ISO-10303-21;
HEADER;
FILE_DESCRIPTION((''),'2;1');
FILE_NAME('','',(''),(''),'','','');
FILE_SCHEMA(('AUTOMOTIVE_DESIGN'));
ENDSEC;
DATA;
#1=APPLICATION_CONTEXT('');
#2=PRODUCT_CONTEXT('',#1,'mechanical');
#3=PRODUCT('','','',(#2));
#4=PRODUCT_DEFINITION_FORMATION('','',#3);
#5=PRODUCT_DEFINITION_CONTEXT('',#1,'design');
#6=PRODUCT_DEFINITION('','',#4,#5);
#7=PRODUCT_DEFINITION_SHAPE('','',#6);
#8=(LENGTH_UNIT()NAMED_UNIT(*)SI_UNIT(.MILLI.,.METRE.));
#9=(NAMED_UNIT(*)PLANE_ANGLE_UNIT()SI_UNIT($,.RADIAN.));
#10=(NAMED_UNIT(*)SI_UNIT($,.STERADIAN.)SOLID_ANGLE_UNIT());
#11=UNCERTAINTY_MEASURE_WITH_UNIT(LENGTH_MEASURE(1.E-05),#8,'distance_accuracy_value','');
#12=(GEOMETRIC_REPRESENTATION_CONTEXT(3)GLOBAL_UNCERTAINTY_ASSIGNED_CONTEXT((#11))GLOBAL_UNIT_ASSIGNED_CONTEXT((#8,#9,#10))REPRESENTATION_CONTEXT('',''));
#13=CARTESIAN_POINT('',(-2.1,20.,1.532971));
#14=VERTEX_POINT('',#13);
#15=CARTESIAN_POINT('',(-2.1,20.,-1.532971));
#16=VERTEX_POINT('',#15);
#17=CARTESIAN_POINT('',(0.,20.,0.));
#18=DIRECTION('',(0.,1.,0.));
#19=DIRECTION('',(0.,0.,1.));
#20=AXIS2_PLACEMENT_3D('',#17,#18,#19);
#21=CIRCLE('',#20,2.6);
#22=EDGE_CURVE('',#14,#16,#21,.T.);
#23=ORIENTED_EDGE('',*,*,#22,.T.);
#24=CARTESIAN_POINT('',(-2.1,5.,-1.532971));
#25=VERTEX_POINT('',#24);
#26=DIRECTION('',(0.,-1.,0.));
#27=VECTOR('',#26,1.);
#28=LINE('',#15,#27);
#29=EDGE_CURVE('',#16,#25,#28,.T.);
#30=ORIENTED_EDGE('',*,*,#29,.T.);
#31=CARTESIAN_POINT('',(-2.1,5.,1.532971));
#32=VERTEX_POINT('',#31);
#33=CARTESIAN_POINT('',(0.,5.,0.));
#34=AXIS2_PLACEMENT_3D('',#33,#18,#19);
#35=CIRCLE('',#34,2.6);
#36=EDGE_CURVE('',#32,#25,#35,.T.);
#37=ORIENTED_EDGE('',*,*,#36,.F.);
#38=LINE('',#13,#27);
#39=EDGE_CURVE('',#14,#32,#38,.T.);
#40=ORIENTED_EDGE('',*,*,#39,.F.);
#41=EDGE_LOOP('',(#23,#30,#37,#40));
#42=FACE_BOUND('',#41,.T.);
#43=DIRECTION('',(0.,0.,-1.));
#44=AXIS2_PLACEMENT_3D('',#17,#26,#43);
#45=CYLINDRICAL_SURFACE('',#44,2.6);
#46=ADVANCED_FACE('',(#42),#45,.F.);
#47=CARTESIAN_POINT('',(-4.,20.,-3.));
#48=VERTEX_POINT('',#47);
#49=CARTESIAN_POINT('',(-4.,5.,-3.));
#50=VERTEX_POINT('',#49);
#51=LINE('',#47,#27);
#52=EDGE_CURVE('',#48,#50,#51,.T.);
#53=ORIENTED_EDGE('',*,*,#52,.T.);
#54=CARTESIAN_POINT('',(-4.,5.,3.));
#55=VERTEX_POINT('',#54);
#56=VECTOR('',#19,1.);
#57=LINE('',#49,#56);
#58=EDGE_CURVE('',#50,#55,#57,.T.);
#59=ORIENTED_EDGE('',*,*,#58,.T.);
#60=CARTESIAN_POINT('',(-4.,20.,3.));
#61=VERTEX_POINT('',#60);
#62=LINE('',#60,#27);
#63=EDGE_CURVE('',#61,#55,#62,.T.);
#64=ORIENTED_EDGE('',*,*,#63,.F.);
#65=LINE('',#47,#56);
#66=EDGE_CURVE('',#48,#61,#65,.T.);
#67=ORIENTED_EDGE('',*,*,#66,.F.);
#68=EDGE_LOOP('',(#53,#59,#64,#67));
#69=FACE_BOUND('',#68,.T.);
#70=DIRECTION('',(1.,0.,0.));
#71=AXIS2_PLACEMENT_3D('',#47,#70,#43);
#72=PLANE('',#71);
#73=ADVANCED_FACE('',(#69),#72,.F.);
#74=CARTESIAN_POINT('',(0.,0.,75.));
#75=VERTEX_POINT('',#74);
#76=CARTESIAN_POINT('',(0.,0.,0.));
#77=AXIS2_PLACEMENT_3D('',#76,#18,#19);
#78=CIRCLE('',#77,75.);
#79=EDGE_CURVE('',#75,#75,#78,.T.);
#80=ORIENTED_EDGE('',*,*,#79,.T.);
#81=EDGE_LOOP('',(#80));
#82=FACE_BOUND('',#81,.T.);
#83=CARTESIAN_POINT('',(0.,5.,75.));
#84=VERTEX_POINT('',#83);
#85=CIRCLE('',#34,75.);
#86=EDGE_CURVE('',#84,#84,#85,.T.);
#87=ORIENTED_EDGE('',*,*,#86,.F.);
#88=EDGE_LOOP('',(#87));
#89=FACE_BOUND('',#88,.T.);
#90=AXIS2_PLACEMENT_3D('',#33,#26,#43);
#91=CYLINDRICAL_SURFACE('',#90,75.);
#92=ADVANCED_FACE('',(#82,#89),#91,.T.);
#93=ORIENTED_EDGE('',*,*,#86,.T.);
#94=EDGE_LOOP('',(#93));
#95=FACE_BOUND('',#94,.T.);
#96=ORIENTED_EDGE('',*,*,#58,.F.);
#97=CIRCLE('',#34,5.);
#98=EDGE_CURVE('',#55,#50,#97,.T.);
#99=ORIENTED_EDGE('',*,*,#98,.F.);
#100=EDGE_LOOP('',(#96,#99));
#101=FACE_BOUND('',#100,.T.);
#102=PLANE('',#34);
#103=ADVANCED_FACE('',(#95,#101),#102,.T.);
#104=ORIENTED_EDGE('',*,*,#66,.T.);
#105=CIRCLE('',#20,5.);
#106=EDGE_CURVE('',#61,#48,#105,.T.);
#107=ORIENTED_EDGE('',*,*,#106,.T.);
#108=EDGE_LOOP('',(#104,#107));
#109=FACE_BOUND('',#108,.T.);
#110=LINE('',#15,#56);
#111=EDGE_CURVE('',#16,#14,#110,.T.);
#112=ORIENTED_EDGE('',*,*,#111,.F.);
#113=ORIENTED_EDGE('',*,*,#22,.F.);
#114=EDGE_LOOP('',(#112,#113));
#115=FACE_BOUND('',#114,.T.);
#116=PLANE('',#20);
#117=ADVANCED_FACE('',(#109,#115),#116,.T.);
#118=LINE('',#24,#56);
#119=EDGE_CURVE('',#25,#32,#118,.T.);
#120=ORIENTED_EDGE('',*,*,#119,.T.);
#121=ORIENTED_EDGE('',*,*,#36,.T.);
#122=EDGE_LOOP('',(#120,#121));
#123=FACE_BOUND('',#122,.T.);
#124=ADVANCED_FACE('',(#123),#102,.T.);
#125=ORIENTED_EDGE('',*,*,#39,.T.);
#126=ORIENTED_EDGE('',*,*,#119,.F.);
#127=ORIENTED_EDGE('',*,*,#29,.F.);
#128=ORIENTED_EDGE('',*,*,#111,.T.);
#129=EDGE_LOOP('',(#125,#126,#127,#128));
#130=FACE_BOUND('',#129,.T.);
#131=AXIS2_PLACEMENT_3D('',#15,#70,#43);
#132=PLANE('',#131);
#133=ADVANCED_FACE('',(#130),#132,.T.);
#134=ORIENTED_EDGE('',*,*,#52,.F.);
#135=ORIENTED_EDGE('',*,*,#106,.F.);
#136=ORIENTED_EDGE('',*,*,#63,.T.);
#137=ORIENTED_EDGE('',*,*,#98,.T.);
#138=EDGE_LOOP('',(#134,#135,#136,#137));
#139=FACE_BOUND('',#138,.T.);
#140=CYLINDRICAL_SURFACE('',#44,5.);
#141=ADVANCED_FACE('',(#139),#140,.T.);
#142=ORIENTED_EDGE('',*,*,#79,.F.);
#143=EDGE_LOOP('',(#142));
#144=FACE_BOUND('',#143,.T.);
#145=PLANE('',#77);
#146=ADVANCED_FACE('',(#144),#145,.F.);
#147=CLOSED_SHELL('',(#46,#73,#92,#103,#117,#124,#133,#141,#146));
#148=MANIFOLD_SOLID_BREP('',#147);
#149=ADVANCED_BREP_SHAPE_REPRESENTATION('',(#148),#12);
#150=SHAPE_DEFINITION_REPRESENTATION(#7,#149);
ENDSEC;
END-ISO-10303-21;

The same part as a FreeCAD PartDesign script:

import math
import FreeCAD as App
import Part
import Sketcher
from FreeCAD import Vector

doc = App.newDocument("Part")
params = doc.addObject("Spreadsheet::Sheet", "Params")
for row, (alias, value) in enumerate([
    ("sketch1_diameter", "150 mm"),
    ("pad1_length", "5 mm"),
    ("sketch2_radius", "5 mm"),
    ("sketch2_radius2", "2.6 mm"),
    ("sketch2_height", "6 mm"),
    ("pad2_length", "15 mm"),
], start=1):
    params.set(f"A{row}", alias)
    params.set(f"B{row}", "=" + value)
    params.setAlias(f"B{row}", alias)

body = doc.addObject("PartDesign::Body", "Body")

# Sketch on XZ plane
sketch1 = body.newObject("Sketcher::SketchObject", "Sketch")
sketch1.AttachmentSupport = (doc.getObject("XZ_Plane"), [""])
sketch1.MapMode = "FlatFace"
sketch1.addGeometry(Part.Circle(Vector(0, 0, 0), Vector(0, 0, 1), 75), False)
sketch1.addConstraint([
    Sketcher.Constraint("Coincident", 0, 3, -1, 1),
    Sketcher.Constraint("Diameter", 0, 150.0),
])
sketch1.setExpression("Constraints[1]", "Params.sketch1_diameter")
pad1 = body.newObject("PartDesign::Pad", "Pad")
pad1.Profile = sketch1
pad1.setExpression("Length", "Params.pad1_length")
pad1.Reversed = True

# Sketch on XZ plane
sketch2 = body.newObject("Sketcher::SketchObject", "Sketch001")
sketch2.AttachmentSupport = (doc.getObject("XZ_Plane"), [""])
sketch2.MapMode = "FlatFace"
sketch2.AttachmentOffset = App.Placement(Vector(0, 0, -5), App.Rotation())
sketch2.addGeometry([
    Part.LineSegment(Vector(-4, -3, 0), Vector(-4, 3, 0)),
    Part.ArcOfCircle(Part.Circle(Vector(0, 0, 0), Vector(0, 0, 1), 5), math.radians(-143.130102), math.radians(143.130102)),
    Part.LineSegment(Vector(-2.1, 1.532971, 0), Vector(-2.1, -1.532971, 0)),
    Part.ArcOfCircle(Part.Circle(Vector(0, 0, 0), Vector(0, 0, 1), 2.6), math.radians(-143.871073), math.radians(143.871073)),
], False)
sketch2.addConstraint([
    Sketcher.Constraint("Coincident", 0, 1, 1, 1),
    Sketcher.Constraint("Coincident", 1, 2, 0, 2),
    Sketcher.Constraint("Coincident", 2, 1, 3, 2),
    Sketcher.Constraint("Coincident", 3, 1, 2, 2),
    Sketcher.Constraint("Vertical", 0),
    Sketcher.Constraint("Vertical", 2),
    Sketcher.Constraint("Coincident", 1, 3, -1, 1),
    Sketcher.Constraint("Coincident", 3, 3, -1, 1),
    Sketcher.Constraint("Radius", 1, 5.0),
    Sketcher.Constraint("Radius", 3, 2.6),
    Sketcher.Constraint("DistanceY", 0, 1, 0, 2, 6.0),
    Sketcher.Constraint("DistanceX", 2, 1, -1, 1, 2.1),
])
sketch2.setExpression("Constraints[8]", "Params.sketch2_radius")
sketch2.setExpression("Constraints[9]", "Params.sketch2_radius2")
sketch2.setExpression("Constraints[10]", "Params.sketch2_height")
pad2 = body.newObject("PartDesign::Pad", "Pad001")
pad2.Profile = sketch2
pad2.setExpression("Length", "Params.pad2_length")
pad2.Reversed = True

doc.recompute()
